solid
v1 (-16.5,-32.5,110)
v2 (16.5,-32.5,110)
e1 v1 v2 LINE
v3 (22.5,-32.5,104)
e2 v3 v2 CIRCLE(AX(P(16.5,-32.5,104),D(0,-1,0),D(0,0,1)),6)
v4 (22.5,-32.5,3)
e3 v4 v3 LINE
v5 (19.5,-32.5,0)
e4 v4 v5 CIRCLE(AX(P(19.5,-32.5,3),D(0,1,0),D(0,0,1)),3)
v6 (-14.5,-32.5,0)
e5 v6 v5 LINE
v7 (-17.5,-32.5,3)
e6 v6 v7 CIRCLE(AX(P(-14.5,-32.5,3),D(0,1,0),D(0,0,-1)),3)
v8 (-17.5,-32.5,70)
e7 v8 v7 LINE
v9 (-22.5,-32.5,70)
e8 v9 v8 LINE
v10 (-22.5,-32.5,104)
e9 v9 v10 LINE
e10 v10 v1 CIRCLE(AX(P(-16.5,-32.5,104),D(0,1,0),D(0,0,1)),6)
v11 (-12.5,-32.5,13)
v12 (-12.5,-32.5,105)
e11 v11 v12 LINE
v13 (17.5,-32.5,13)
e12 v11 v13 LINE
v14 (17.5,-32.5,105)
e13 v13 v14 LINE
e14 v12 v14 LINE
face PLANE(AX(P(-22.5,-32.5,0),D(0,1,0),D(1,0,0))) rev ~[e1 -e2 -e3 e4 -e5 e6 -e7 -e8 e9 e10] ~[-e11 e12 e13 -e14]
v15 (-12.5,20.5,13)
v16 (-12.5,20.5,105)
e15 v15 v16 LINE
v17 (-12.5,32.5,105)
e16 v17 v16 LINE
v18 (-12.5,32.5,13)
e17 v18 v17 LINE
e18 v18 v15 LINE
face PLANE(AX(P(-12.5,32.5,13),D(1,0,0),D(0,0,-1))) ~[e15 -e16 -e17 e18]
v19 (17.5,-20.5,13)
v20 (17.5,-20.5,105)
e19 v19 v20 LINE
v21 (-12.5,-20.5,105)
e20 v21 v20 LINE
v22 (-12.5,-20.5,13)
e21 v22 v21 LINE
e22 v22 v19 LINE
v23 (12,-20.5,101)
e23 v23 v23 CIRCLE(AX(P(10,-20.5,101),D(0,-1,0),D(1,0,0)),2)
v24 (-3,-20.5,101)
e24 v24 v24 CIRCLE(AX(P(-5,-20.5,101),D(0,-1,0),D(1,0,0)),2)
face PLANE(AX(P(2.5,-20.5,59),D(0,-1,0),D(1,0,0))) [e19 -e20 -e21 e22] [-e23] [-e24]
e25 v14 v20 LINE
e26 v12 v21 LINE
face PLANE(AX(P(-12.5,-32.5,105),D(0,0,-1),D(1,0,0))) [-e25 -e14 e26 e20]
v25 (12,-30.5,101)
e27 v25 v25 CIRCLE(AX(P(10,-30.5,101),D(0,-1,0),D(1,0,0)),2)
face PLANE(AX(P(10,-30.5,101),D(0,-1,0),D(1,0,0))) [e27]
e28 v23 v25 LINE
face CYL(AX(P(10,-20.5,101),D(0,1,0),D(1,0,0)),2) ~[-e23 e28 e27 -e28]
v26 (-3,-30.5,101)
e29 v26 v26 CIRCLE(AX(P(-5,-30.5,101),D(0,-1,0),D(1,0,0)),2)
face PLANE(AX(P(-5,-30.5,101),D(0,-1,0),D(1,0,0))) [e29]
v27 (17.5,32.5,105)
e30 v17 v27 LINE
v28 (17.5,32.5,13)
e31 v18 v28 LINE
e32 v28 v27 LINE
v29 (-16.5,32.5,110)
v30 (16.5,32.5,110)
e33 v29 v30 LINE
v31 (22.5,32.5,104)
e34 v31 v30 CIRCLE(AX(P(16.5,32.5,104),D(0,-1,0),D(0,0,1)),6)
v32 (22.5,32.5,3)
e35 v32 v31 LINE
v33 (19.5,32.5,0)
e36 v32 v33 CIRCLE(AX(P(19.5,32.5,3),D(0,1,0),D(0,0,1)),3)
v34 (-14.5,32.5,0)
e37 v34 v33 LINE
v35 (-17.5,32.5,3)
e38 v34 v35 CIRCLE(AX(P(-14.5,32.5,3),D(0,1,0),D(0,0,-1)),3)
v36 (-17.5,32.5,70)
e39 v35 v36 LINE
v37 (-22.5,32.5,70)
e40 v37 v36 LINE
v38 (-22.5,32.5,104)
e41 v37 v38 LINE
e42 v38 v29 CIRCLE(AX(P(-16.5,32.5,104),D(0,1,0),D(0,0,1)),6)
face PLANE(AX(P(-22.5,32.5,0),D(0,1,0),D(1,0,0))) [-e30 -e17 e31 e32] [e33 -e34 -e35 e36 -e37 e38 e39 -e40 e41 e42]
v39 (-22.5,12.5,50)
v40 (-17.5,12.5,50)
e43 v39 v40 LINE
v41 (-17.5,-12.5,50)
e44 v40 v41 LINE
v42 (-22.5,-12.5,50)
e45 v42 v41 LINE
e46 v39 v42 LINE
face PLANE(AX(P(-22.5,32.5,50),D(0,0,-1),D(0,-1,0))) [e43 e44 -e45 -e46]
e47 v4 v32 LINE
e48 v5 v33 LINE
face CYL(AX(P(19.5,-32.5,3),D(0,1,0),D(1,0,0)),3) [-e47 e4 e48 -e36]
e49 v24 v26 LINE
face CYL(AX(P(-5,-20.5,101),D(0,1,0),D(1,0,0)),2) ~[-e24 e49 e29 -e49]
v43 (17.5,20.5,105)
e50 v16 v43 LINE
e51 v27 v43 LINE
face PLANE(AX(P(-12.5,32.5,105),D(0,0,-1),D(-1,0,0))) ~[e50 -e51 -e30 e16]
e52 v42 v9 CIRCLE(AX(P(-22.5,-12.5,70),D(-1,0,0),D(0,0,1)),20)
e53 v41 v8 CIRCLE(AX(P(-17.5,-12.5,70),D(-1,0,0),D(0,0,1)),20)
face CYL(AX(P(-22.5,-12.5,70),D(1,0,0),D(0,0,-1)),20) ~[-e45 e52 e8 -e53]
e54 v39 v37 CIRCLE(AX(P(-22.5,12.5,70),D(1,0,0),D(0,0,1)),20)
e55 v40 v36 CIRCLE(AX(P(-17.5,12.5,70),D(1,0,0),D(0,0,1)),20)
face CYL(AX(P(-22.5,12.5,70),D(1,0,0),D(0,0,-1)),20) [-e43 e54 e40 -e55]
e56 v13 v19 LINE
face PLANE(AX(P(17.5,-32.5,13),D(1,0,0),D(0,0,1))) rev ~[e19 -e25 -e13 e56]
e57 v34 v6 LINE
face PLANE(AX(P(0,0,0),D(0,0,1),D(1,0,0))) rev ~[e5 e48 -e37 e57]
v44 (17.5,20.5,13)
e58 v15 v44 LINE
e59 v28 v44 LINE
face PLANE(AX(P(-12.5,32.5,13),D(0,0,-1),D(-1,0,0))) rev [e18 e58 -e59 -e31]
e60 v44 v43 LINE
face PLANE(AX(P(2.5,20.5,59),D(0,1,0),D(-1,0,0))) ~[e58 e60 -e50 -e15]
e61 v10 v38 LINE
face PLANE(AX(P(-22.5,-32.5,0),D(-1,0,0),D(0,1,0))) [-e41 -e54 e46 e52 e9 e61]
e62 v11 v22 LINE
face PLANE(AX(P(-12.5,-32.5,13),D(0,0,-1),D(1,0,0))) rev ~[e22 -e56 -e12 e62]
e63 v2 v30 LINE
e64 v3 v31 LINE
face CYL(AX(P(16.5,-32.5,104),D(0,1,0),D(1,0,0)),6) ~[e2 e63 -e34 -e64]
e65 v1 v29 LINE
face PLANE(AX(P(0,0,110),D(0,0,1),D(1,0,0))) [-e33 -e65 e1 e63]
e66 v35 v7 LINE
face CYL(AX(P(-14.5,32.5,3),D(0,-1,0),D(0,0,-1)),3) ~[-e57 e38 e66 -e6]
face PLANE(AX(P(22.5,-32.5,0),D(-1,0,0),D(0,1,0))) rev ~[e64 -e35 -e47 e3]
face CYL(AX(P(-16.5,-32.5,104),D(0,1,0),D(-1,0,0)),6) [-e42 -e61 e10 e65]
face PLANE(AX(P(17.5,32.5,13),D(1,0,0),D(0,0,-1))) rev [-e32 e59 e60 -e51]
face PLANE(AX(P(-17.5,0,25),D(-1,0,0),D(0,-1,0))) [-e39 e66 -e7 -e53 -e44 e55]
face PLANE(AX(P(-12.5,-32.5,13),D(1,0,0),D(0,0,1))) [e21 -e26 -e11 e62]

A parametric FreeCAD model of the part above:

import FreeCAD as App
import Part
import Sketcher
from FreeCAD import Vector
Q = App.Units.Quantity


def edges_at(feature, points):
    """Names of the edges that pass closest to the given points."""
    edges = feature.Shape.Edges
    near = lambda p: min(range(len(edges)), key=lambda i: edges[i].distToShape(Part.Vertex(*p))[0])
    return sorted({f"Edge{near(p) + 1}" for p in points})


def add_polygon(sketch, points):
    """Adds a closed chain of lines whose ends are joined by coincident constraints."""
    first, n = sketch.GeometryCount, len(points)
    for a, b in zip(points, points[1:] + points[:1]):
        sketch.addGeometry(Part.LineSegment(App.Vector(*a, 0), App.Vector(*b, 0)), False)
    for i in range(n):
        sketch.addConstraint(Sketcher.Constraint("Coincident", first + i, 2, first + (i + 1) % n, 1))

doc = App.newDocument("Part")
body = doc.addObject("PartDesign::Body", "Body")

# Sketch on XY plane
sketch1 = body.newObject("Sketcher::SketchObject", "Sketch")
sketch1.AttachmentSupport = (doc.getObject("XY_Plane"), [""])
sketch1.MapMode = "FlatFace"
add_polygon(sketch1, [(-22.5, 32.5), (-22.5, -32.5), (22.5, -32.5), (22.5, 32.5)])  # lines 0-3
sketch1.addConstraint(Sketcher.Constraint("Vertical", 0))
sketch1.addConstraint(Sketcher.Constraint("Horizontal", 1))
sketch1.addConstraint(Sketcher.Constraint("Vertical", 2))
sketch1.addConstraint(Sketcher.Constraint("Horizontal", 3))
sketch1.addConstraint(Sketcher.Constraint("Symmetric", 0, 2, 2, 2, -1, 1))
sketch1.addConstraint(Sketcher.Constraint("DistanceX", 1, 1, 1, 2, Q("45 mm")))
sketch1.addConstraint(Sketcher.Constraint("DistanceY", 0, 2, 0, 1, Q("65 mm")))
pad1 = body.newObject("PartDesign::Pad", "Pad")
pad1.Profile = sketch1
pad1.Length = 110
doc.recompute()

fillet = body.newObject("PartDesign::Fillet", "Fillet")
fillet.Base = (pad1, edges_at(pad1, [(-22.5, 0, 110), (22.5, 0, 110)]))
fillet.Radius = 6

# Sketch on XZ plane
sketch2 = body.newObject("Sketcher::SketchObject", "Sketch001")
sketch2.AttachmentSupport = (doc.getObject("XZ_Plane"), [""])
sketch2.MapMode = "FlatFace"
sketch2.AttachmentOffset = App.Placement(Vector(0, 0, 32.5), App.Rotation())
add_polygon(sketch2, [(-12.5, 105), (-12.5, 13), (17.5, 13), (17.5, 105)])  # lines 0-3
sketch2.addConstraint(Sketcher.Constraint("Vertical", 0))
sketch2.addConstraint(Sketcher.Constraint("Horizontal", 1))
sketch2.addConstraint(Sketcher.Constraint("Vertical", 2))
sketch2.addConstraint(Sketcher.Constraint("Horizontal", 3))
sketch2.addConstraint(Sketcher.Constraint("DistanceX", 1, 1, 1, 2, Q("30 mm")))
sketch2.addConstraint(Sketcher.Constraint("DistanceY", 0, 2, 0, 1, Q("92 mm")))
sketch2.addConstraint(Sketcher.Constraint("DistanceY", -1, 1, 0, 2, Q("13 mm")))
sketch2.addConstraint(Sketcher.Constraint("DistanceX", 0, 2, -1, 1, Q("12.5 mm")))
pocket1 = body.newObject("PartDesign::Pocket", "Pocket")
pocket1.Profile = sketch2
pocket1.Length = 12
doc.recompute()

mirrored = body.newObject("PartDesign::Mirrored", "Mirrored")
mirrored.Originals = [pocket1]
mirrored.MirrorPlane = (doc.getObject("XZ_Plane"), [""])
body.Tip = mirrored

# Sketch on XZ plane
sketch3 = body.newObject("Sketcher::SketchObject", "Sketch002")
sketch3.AttachmentSupport = (doc.getObject("XZ_Plane"), [""])
sketch3.MapMode = "FlatFace"
sketch3.AttachmentOffset = App.Placement(Vector(0, 0, 20.5), App.Rotation())
sketch3.addGeometry(Part.Circle(Vector(-5, 101, 0), Vector(0, 0, 1), 2), False)
sketch3.addGeometry(Part.Circle(Vector(10, 101, 0), Vector(0, 0, 1), 2), False)
sketch3.addConstraint(Sketcher.Constraint("Equal", 0, 1))
sketch3.addConstraint(Sketcher.Constraint("Horizontal", 0, 3, 1, 3))
sketch3.addConstraint(Sketcher.Constraint("Diameter", 0, Q("4 mm")))
sketch3.addConstraint(Sketcher.Constraint("DistanceX", 0, 3, -1, 1, Q("5 mm")))
sketch3.addConstraint(Sketcher.Constraint("DistanceY", -1, 1, 0, 3, Q("101 mm")))
sketch3.addConstraint(Sketcher.Constraint("DistanceX", -1, 1, 1, 3, Q("10 mm")))
pad2 = body.newObject("PartDesign::Pad", "Pad001")
pad2.Profile = sketch3
pad2.Length = 10

# Sketch on YZ plane
sketch4 = body.newObject("Sketcher::SketchObject", "Sketch003")
sketch4.AttachmentSupport = (doc.getObject("YZ_Plane"), [""])
sketch4.MapMode = "FlatFace"
sketch4.AttachmentOffset = App.Placement(Vector(0, 0, -22.5), App.Rotation())
add_polygon(sketch4, [(32.5, 50), (32.5, 0), (-32.5, 0), (-32.5, 50)])  # lines 0-3
sketch4.addConstraint(Sketcher.Constraint("Vertical", 0))
sketch4.addConstraint(Sketcher.Constraint("Horizontal", 1))
sketch4.addConstraint(Sketcher.Constraint("Vertical", 2))
sketch4.addConstraint(Sketcher.Constraint("Horizontal", 3))
sketch4.addConstraint(Sketcher.Constraint("Symmetric", 0, 2, 1, 2, -1, 1))
sketch4.addConstraint(Sketcher.Constraint("DistanceX", 1, 2, 1, 1, Q("65 mm")))
sketch4.addConstraint(Sketcher.Constraint("DistanceY", 0, 2, 0, 1, Q("50 mm")))
pocket2 = body.newObject("PartDesign::Pocket", "Pocket001")
pocket2.Profile = sketch4
pocket2.Length = 5
pocket2.Reversed = True
doc.recompute()

fillet2 = body.newObject("PartDesign::Fillet", "Fillet001")
fillet2.Base = (pocket2, edges_at(pocket2, [(-20, 32.5, 50), (-20, -32.5, 50)]))
fillet2.Radius = 20
doc.recompute()

fillet3 = body.newObject("PartDesign::Fillet", "Fillet002")
fillet3.Base = (fillet2, edges_at(fillet2, [(-17.5, 0, 0), (22.5, 0, 0)]))
fillet3.Radius = 3

doc.recompute()
